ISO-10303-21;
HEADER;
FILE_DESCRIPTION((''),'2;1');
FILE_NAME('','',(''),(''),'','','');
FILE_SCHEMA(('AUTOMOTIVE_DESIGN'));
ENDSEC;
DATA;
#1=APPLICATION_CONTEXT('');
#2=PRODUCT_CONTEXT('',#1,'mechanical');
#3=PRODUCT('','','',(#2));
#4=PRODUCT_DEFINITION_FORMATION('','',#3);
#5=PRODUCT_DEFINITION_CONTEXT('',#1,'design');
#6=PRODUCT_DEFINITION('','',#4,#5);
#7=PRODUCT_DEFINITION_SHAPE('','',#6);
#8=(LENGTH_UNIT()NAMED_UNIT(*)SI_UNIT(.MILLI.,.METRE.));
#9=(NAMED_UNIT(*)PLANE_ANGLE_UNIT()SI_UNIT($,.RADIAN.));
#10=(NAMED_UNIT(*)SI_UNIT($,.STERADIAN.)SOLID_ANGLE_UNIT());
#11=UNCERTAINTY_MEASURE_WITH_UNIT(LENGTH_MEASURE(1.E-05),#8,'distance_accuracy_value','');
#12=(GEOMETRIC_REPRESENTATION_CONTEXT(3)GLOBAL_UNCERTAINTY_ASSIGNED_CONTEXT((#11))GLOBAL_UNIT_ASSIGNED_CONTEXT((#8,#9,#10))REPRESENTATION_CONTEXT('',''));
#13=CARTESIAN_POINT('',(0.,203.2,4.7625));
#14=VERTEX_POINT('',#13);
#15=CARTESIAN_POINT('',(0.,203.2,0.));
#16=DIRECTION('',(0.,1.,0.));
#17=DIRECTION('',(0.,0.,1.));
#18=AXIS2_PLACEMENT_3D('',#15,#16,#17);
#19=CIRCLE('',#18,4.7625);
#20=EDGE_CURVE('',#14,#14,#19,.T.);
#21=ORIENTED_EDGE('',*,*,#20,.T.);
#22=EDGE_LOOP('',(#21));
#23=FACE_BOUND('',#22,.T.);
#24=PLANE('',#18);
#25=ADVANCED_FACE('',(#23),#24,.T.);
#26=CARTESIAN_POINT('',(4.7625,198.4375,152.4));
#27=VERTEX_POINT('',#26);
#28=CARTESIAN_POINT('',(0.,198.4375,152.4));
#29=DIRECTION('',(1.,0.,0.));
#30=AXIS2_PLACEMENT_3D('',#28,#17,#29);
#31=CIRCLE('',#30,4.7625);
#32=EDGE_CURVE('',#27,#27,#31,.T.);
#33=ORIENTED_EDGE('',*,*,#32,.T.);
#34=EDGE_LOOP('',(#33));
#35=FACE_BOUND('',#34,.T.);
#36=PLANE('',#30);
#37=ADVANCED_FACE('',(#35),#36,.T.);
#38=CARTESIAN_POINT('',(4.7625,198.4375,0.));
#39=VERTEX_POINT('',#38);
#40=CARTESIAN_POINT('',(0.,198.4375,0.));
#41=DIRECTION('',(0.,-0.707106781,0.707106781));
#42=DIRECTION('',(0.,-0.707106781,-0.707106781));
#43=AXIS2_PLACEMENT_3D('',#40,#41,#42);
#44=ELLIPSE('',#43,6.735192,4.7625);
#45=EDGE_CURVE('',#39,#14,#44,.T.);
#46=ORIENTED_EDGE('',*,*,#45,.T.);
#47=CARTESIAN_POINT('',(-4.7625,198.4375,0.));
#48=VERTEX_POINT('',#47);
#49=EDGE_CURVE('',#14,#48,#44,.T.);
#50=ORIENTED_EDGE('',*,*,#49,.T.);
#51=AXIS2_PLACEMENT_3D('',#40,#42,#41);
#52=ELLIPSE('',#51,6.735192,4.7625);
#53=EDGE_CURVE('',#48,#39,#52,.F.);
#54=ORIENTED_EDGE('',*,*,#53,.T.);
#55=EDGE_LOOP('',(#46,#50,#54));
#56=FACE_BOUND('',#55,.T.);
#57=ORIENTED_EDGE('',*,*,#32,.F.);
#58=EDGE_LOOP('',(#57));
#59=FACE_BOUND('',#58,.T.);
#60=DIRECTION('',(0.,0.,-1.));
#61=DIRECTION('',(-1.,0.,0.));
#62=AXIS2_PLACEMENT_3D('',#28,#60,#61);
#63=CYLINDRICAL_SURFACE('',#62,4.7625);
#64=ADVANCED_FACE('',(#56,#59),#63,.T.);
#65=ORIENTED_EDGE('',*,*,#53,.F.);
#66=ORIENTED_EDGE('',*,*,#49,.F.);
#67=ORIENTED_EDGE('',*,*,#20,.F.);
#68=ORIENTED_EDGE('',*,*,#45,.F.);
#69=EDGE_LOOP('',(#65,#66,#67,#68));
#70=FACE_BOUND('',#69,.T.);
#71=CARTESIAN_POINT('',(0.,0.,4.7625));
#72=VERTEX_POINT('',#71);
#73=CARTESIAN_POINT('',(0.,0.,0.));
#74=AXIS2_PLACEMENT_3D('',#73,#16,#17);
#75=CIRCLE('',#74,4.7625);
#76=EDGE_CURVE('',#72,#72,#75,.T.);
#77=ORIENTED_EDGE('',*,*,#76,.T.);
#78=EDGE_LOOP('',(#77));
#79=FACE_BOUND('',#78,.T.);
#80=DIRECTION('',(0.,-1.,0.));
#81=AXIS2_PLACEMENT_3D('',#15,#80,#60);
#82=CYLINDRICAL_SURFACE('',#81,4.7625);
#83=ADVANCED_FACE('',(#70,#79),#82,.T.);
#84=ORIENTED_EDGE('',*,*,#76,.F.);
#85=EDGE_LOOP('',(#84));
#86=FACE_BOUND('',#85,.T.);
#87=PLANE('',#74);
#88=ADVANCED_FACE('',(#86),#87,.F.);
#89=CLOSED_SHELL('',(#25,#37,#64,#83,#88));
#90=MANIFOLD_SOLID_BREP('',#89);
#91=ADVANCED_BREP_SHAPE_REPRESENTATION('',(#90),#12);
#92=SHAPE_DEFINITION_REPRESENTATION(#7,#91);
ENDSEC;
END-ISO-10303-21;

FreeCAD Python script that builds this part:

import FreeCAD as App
import Part
import Sketcher

V = App.Vector
Q = App.Units.Quantity

doc = App.newDocument("Part")
body = doc.addObject("PartDesign::Body", "Body")

# Sketch on XZ plane
sketch1 = body.newObject("Sketcher::SketchObject", "Sketch")
sketch1.AttachmentSupport = (doc.getObject("XZ_Plane"), [""])
sketch1.MapMode = "FlatFace"
sketch1.addGeometry(Part.Circle(V(0, 0, 0), V(0, 0, 1), 4.7625), False)
sketch1.addConstraint([
    Sketcher.Constraint("Coincident", 0, 3, -1, 1),
    Sketcher.Constraint("Diameter", 0, Q("0.375 in")),
])
pad1 = body.newObject("PartDesign::Pad", "Pad")
pad1.Profile = sketch1
pad1.Length = Q("8 in")
pad1.Reversed = True

# Sketch on XY plane
sketch2 = body.newObject("Sketcher::SketchObject", "Sketch001")
sketch2.AttachmentSupport = (doc.getObject("XY_Plane"), [""])
sketch2.MapMode = "FlatFace"
sketch2.addGeometry(Part.Circle(V(0, 198.4375, 0), V(0, 0, 1), 4.7625), False)
sketch2.addConstraint([
    Sketcher.Constraint("PointOnObject", 0, 3, -2),
    Sketcher.Constraint("Diameter", 0, Q("0.375 in")),
    Sketcher.Constraint("DistanceY", -1, 1, 0, 3, Q("7.8125 in")),
])
pad2 = body.newObject("PartDesign::Pad", "Pad001")
pad2.Profile = sketch2
pad2.Length = Q("6 in")

doc.recompute()
